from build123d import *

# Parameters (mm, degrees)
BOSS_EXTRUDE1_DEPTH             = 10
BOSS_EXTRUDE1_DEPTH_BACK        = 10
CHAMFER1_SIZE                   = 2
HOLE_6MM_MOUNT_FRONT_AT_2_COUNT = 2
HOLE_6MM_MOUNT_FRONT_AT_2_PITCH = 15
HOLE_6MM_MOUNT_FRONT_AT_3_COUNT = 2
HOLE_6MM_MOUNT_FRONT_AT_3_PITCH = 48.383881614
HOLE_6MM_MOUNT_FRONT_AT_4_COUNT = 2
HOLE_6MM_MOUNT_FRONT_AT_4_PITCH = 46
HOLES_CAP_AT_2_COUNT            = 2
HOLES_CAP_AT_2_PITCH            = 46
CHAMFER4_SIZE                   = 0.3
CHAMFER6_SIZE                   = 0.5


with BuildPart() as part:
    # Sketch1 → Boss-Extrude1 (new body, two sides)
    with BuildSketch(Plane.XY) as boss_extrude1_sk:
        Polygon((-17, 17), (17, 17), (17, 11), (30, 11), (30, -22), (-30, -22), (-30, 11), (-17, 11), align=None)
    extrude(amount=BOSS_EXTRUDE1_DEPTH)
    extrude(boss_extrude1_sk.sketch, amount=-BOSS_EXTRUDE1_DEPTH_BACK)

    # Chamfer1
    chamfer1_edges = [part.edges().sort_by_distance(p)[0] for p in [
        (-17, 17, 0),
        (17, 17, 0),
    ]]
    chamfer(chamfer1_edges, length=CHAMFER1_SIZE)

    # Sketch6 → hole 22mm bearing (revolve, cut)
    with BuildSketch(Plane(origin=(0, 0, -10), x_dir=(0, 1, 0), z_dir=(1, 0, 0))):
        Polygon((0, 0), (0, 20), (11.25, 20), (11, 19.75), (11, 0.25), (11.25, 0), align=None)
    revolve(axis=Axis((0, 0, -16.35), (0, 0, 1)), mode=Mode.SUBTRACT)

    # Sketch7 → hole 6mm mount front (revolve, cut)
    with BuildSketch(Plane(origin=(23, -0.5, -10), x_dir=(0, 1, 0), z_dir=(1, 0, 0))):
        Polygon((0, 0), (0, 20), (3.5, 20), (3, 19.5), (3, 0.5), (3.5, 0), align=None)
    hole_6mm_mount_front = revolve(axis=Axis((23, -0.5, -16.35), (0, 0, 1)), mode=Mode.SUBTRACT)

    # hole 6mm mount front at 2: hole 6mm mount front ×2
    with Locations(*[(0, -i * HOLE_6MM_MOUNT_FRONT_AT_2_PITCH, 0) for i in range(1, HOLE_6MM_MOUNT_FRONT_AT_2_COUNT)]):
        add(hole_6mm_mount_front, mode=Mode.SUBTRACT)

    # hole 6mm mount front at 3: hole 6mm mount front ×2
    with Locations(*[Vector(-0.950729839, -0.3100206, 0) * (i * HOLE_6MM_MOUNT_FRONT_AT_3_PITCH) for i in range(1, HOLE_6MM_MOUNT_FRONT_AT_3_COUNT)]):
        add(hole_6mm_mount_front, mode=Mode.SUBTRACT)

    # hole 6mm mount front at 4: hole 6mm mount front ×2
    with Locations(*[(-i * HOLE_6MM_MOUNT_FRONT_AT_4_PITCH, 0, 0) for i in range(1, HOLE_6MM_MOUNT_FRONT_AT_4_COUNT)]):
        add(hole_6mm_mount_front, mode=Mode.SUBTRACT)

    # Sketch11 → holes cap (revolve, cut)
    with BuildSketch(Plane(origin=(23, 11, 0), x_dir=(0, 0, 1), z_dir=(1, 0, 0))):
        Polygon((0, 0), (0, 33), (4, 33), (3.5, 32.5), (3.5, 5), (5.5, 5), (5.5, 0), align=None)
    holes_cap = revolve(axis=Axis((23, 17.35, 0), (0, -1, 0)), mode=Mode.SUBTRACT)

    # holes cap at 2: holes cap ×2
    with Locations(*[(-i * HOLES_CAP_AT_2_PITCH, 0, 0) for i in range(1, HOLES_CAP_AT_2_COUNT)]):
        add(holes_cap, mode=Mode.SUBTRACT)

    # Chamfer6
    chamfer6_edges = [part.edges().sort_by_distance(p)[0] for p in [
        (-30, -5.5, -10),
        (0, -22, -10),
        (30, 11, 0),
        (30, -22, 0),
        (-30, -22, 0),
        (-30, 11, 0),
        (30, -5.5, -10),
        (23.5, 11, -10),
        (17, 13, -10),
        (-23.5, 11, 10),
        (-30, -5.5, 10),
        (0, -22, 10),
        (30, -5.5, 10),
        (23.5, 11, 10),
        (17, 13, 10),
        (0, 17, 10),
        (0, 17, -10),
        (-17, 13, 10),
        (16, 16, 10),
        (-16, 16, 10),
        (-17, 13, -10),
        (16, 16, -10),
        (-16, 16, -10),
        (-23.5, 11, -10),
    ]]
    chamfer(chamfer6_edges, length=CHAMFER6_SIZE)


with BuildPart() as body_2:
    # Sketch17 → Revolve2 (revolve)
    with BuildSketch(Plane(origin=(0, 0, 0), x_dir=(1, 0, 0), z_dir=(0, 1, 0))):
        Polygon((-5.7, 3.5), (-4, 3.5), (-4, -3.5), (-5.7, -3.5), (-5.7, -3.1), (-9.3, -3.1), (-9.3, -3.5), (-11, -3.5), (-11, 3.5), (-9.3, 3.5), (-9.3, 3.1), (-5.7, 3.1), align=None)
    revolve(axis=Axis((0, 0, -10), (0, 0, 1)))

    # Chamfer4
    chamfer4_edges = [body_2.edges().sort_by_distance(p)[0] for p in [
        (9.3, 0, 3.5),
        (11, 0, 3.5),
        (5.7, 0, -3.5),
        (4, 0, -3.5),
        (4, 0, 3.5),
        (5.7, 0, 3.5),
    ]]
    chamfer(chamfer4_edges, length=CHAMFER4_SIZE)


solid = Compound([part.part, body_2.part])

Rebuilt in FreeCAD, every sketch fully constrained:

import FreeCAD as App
import Part
import Sketcher
Q = App.Units.Quantity


def edges_at(feature, points):
    """Names of the edges that pass closest to the given points."""
    edges = feature.Shape.Edges
    near = lambda p: min(range(len(edges)), key=lambda i: edges[i].distToShape(Part.Vertex(*p))[0])
    return sorted({f"Edge{near(p) + 1}" for p in points})


def add_polygon(sketch, points):
    """Adds a closed chain of lines whose ends are joined by coincident constraints."""
    first, n = sketch.GeometryCount, len(points)
    for a, b in zip(points, points[1:] + points[:1]):
        sketch.addGeometry(Part.LineSegment(App.Vector(*a, 0), App.Vector(*b, 0)), False)
    for i in range(n):
        sketch.addConstraint(Sketcher.Constraint("Coincident", first + i, 2, first + (i + 1) % n, 1))

doc = App.newDocument("Part")
body = doc.addObject("PartDesign::Body", "Body")

sketch1 = body.newObject("Sketcher::SketchObject", "Sketch")
sketch1.AttachmentSupport = (doc.getObject("XY_Plane"), [""])
sketch1.MapMode = "FlatFace"
add_polygon(sketch1, [(17, 17), (-17, 17), (-17, 11), (-30, 11), (-30, -22), (30, -22), (30, 11), (17, 11)])
sketch1.addConstraint([
    Sketcher.Constraint("Horizontal", 0),
    Sketcher.Constraint("Vertical", 1),
    Sketcher.Constraint("Horizontal", 2),
    Sketcher.Constraint("Vertical", 3),
    Sketcher.Constraint("Horizontal", 4),
    Sketcher.Constraint("Vertical", 5),
    Sketcher.Constraint("Horizontal", 6),
    Sketcher.Constraint("Vertical", 7),
    Sketcher.Constraint("Symmetric", 2, 2, 5, 2, -2),
    Sketcher.Constraint("Equal", 2, 6),
    Sketcher.Constraint("DistanceX", 0, 2, 0, 1, Q("34 mm")),
    Sketcher.Constraint("DistanceX", 2, 2, 2, 1, Q("13 mm")),
    Sketcher.Constraint("DistanceY", 1, 2, 1, 1, Q("6 mm")),
    Sketcher.Constraint("DistanceY", 3, 2, 3, 1, Q("33 mm")),
    Sketcher.Constraint("DistanceY", -1, 1, 0, 2, Q("17 mm")),
])
pad1 = body.newObject("PartDesign::Pad", "Pad")
pad1.Profile = sketch1
pad1.Type = "TwoLengths"
pad1.Length = 10
pad1.Length2 = 10
doc.recompute()

chamfer = body.newObject("PartDesign::Chamfer", "Chamfer")
chamfer.Base = (pad1, edges_at(pad1, [(-17, 17, 0), (17, 17, 0)]))
chamfer.Size = 2

sketch2 = body.newObject("Sketcher::SketchObject", "Sketch001")
sketch2.AttachmentSupport = (doc.getObject("YZ_Plane"), [""])
sketch2.MapMode = "FlatFace"
add_polygon(sketch2, [(0, 10), (0, -10), (11.25, -10), (11, -9.75), (11, 9.75), (11.25, 10)])
sketch2.addConstraint([
    Sketcher.Constraint("Vertical", 0),
    Sketcher.Constraint("Horizontal", 1),
    Sketcher.Constraint("Vertical", 3),
    Sketcher.Constraint("Horizontal", 5),
    Sketcher.Constraint("Symmetric", 0, 2, 5, 2, -1, 1),
    Sketcher.Constraint("Perpendicular", 2, 4),
    Sketcher.Constraint("Vertical", 1, 2, 4, 2),
    Sketcher.Constraint("Equal", 2, 4),
    Sketcher.Constraint("DistanceY", 0, 2, 0, 1, Q("20 mm")),
    Sketcher.Constraint("DistanceY", 3, 1, 3, 2, Q("19.5 mm")),
    Sketcher.Constraint("DistanceX", -1, 1, 2, 2, Q("11 mm")),
])
groove = body.newObject("PartDesign::Groove", "Groove")
groove.Profile = sketch2
groove.ReferenceAxis = (sketch2, ["V_Axis"])
groove.Angle = 360

sketch3 = body.newObject("Sketcher::SketchObject", "Sketch002")
sketch3.AttachmentSupport = (doc.getObject("YZ_Plane"), [""])
sketch3.MapMode = "FlatFace"
sketch3.AttachmentOffset = App.Placement(App.Vector(0, 0, 23), App.Rotation())
add_polygon(sketch3, [(-0.5, 10), (-0.5, -10), (3, -10), (2.5, -9.5), (2.5, 9.5), (3, 10)])
sketch3.addGeometry(Part.LineSegment(App.Vector(-0.5, -10, 0), App.Vector(-0.5, 10, 0)), True)
sketch3.addConstraint([
    Sketcher.Constraint("Vertical", 0),
    Sketcher.Constraint("Horizontal", 1),
    Sketcher.Constraint("Vertical", 3),
    Sketcher.Constraint("Horizontal", 5),
    Sketcher.Constraint("Vertical", 6),
    Sketcher.Constraint("Coincident", 6, 1, 0, 2),
    Sketcher.Constraint("Symmetric", 1, 2, 4, 2, -1),
    Sketcher.Constraint("Perpendicular", 2, 4),
    Sketcher.Constraint("Horizontal", 4, 2, 6, 2),
    Sketcher.Constraint("Equal", 2, 4),
    Sketcher.Constraint("DistanceY", 0, 2, 0, 1, Q("20 mm")),
    Sketcher.Constraint("DistanceY", 3, 1, 3, 2, Q("19 mm")),
    Sketcher.Constraint("DistanceX", 1, 1, 1, 2, Q("3.5 mm")),
    Sketcher.Constraint("DistanceX", -1, 1, 1, 2, Q("3 mm")),
])
groove2 = body.newObject("PartDesign::Groove", "Groove001")
groove2.Profile = sketch3
groove2.ReferenceAxis = (sketch3, ["Axis0"])
groove2.Angle = 360
doc.recompute()

linearpattern = body.newObject("PartDesign::LinearPattern", "LinearPattern")
linearpattern.Originals = [groove2]
linearpattern.Direction = (doc.getObject("Y_Axis"), [""])
linearpattern.Mode = "offset"
linearpattern.Offset = 15
linearpattern.Occurrences = 2
linearpattern.Reversed = True
body.Tip = linearpattern
doc.recompute()

datumline = body.newObject("PartDesign::Line", "DatumLine")
datumline.Placement = App.Placement(App.Vector(0, 0, 0), App.Rotation(App.Vector(0, 0, 1), App.Vector(-0.950729839, -0.3100206, 0)))
linearpattern2 = body.newObject("PartDesign::LinearPattern", "LinearPattern001")
linearpattern2.Originals = [groove2]
linearpattern2.Direction = (datumline, [""])
linearpattern2.Mode = "offset"
linearpattern2.Offset = 48.383882
linearpattern2.Occurrences = 2
body.Tip = linearpattern2
doc.recompute()

linearpattern3 = body.newObject("PartDesign::LinearPattern", "LinearPattern002")
linearpattern3.Originals = [groove2]
linearpattern3.Direction = (doc.getObject("X_Axis"), [""])
linearpattern3.Mode = "offset"
linearpattern3.Offset = 46
linearpattern3.Occurrences = 2
linearpattern3.Reversed = True
body.Tip = linearpattern3

sketch4 = body.newObject("Sketcher::SketchObject", "Sketch003")
sketch4.AttachmentSupport = (doc.getObject("YZ_Plane"), [""])
sketch4.MapMode = "FlatFace"
sketch4.AttachmentOffset = App.Placement(App.Vector(0, 0, 23), App.Rotation())
add_polygon(sketch4, [(-22, 0), (11, 0), (11, 5.5), (6, 5.5), (6, 3.5), (-21.5, 3.5), (-22, 4)])
sketch4.addConstraint([
    Sketcher.Constraint("Horizontal", 0),
    Sketcher.Constraint("Vertical", 1),
    Sketcher.Constraint("Horizontal", 2),
    Sketcher.Constraint("Vertical", 3),
    Sketcher.Constraint("Horizontal", 4),
    Sketcher.Constraint("Vertical", 6),
    Sketcher.Constraint("PointOnObject", 0, 2, -1),
    Sketcher.Constraint("DistanceX", 0, 1, 0, 2, Q("33 mm")),
    Sketcher.Constraint("DistanceX", 2, 2, 2, 1, Q("5 mm")),
    Sketcher.Constraint("DistanceY", 3, 2, 3, 1, Q("2 mm")),
    Sketcher.Constraint("DistanceY", 6, 2, 6, 1, Q("4 mm")),
    Sketcher.Constraint("Angle", 5, Q("135 deg")),
    Sketcher.Constraint("DistanceX", 4, 2, 4, 1, Q("27.5 mm")),
    Sketcher.Constraint("DistanceX", -1, 1, 0, 2, Q("11 mm")),
])
groove3 = body.newObject("PartDesign::Groove", "Groove002")
groove3.Profile = sketch4
groove3.ReferenceAxis = (sketch4, ["H_Axis"])
groove3.Angle = 360
doc.recompute()

linearpattern4 = body.newObject("PartDesign::LinearPattern", "LinearPattern003")
linearpattern4.Originals = [groove3]
linearpattern4.Direction = (doc.getObject("X_Axis"), [""])
linearpattern4.Mode = "offset"
linearpattern4.Offset = 46
linearpattern4.Occurrences = 2
linearpattern4.Reversed = True
body.Tip = linearpattern4
doc.recompute()

chamfer2 = body.newObject("PartDesign::Chamfer", "Chamfer001")
chamfer2.Base = (linearpattern4, edges_at(linearpattern4, [
    (-30, -5.5, -10),
    (0, -22, -10),
    (30, 11, 0),
    (30, -22, 0),
    (-30, -22, 0),
    (-30, 11, 0),
    (30, -5.5, -10),
    (23.5, 11, -10),
    (17, 13, -10),
    (-23.5, 11, 10),
    (-30, -5.5, 10),
    (0, -22, 10),
    (30, -5.5, 10),
    (23.5, 11, 10),
    (17, 13, 10),
    (0, 17, 10),
    (0, 17, -10),
    (-17, 13, 10),
    (16, 16, 10),
    (-16, 16, 10),
    (-17, 13, -10),
    (16, 16, -10),
    (-16, 16, -10),
    (-23.5, 11, -10),
]))
chamfer2.Size = 0.5
body2 = doc.addObject("PartDesign::Body", "Body001")

sketch5 = body2.newObject("Sketcher::SketchObject", "Sketch004")
sketch5.AttachmentSupport = (doc.getObject("XZ_Plane001"), [""])
sketch5.MapMode = "FlatFace"
add_polygon(sketch5, [(-4, -3.5), (-5.7, -3.5), (-5.7, -3.1), (-9.3, -3.1), (-9.3, -3.5), (-11, -3.5), (-11, 3.5), (-9.3, 3.5), (-9.3, 3.1), (-5.7, 3.1), (-5.7, 3.5), (-4, 3.5)])
sketch5.addConstraint([
    Sketcher.Constraint("Horizontal", 0),
    Sketcher.Constraint("Vertical", 1),
    Sketcher.Constraint("Horizontal", 2),
    Sketcher.Constraint("Vertical", 3),
    Sketcher.Constraint("Horizontal", 4),
    Sketcher.Constraint("Vertical", 5),
    Sketcher.Constraint("Horizontal", 6),
    Sketcher.Constraint("Vertical", 7),
    Sketcher.Constraint("Horizontal", 8),
    Sketcher.Constraint("Vertical", 9),
    Sketcher.Constraint("Horizontal", 10),
    Sketcher.Constraint("Vertical", 11),
    Sketcher.Constraint("Symmetric", 3, 2, 6, 2, -1),
    Sketcher.Constraint("Symmetric", 1, 2, 8, 2, -1),
    Sketcher.Constraint("Horizontal", 0, 2, 3, 2),
    Sketcher.Constraint("Horizontal", 6, 2, 9, 2),
    Sketcher.Constraint("Equal", 0, 4),
    Sketcher.Constraint("DistanceY", 5, 1, 5, 2, Q("7 mm")),
    Sketcher.Constraint("DistanceX", 0, 2, 0, 1, Q("1.7 mm")),
    Sketcher.Constraint("DistanceX", 2, 2, 2, 1, Q("3.6 mm")),
    Sketcher.Constraint("DistanceY", 1, 1, 1, 2, Q("0.4 mm")),
    Sketcher.Constraint("DistanceX", 4, 2, -1, 1, Q("11 mm")),
])
revolution = body2.newObject("PartDesign::Revolution", "Revolution")
revolution.Profile = sketch5
revolution.ReferenceAxis = (sketch5, ["V_Axis"])
revolution.Angle = 360
doc.recompute()

chamfer3 = body2.newObject("PartDesign::Chamfer", "Chamfer002")
chamfer3.Base = (revolution, edges_at(revolution, [
    (9.3, 0, 3.5),
    (11, 0, 3.5),
    (5.7, 0, -3.5),
    (4, 0, -3.5),
    (4, 0, 3.5),
    (5.7, 0, 3.5),
]))
chamfer3.Size = 0.3

doc.recompute()
